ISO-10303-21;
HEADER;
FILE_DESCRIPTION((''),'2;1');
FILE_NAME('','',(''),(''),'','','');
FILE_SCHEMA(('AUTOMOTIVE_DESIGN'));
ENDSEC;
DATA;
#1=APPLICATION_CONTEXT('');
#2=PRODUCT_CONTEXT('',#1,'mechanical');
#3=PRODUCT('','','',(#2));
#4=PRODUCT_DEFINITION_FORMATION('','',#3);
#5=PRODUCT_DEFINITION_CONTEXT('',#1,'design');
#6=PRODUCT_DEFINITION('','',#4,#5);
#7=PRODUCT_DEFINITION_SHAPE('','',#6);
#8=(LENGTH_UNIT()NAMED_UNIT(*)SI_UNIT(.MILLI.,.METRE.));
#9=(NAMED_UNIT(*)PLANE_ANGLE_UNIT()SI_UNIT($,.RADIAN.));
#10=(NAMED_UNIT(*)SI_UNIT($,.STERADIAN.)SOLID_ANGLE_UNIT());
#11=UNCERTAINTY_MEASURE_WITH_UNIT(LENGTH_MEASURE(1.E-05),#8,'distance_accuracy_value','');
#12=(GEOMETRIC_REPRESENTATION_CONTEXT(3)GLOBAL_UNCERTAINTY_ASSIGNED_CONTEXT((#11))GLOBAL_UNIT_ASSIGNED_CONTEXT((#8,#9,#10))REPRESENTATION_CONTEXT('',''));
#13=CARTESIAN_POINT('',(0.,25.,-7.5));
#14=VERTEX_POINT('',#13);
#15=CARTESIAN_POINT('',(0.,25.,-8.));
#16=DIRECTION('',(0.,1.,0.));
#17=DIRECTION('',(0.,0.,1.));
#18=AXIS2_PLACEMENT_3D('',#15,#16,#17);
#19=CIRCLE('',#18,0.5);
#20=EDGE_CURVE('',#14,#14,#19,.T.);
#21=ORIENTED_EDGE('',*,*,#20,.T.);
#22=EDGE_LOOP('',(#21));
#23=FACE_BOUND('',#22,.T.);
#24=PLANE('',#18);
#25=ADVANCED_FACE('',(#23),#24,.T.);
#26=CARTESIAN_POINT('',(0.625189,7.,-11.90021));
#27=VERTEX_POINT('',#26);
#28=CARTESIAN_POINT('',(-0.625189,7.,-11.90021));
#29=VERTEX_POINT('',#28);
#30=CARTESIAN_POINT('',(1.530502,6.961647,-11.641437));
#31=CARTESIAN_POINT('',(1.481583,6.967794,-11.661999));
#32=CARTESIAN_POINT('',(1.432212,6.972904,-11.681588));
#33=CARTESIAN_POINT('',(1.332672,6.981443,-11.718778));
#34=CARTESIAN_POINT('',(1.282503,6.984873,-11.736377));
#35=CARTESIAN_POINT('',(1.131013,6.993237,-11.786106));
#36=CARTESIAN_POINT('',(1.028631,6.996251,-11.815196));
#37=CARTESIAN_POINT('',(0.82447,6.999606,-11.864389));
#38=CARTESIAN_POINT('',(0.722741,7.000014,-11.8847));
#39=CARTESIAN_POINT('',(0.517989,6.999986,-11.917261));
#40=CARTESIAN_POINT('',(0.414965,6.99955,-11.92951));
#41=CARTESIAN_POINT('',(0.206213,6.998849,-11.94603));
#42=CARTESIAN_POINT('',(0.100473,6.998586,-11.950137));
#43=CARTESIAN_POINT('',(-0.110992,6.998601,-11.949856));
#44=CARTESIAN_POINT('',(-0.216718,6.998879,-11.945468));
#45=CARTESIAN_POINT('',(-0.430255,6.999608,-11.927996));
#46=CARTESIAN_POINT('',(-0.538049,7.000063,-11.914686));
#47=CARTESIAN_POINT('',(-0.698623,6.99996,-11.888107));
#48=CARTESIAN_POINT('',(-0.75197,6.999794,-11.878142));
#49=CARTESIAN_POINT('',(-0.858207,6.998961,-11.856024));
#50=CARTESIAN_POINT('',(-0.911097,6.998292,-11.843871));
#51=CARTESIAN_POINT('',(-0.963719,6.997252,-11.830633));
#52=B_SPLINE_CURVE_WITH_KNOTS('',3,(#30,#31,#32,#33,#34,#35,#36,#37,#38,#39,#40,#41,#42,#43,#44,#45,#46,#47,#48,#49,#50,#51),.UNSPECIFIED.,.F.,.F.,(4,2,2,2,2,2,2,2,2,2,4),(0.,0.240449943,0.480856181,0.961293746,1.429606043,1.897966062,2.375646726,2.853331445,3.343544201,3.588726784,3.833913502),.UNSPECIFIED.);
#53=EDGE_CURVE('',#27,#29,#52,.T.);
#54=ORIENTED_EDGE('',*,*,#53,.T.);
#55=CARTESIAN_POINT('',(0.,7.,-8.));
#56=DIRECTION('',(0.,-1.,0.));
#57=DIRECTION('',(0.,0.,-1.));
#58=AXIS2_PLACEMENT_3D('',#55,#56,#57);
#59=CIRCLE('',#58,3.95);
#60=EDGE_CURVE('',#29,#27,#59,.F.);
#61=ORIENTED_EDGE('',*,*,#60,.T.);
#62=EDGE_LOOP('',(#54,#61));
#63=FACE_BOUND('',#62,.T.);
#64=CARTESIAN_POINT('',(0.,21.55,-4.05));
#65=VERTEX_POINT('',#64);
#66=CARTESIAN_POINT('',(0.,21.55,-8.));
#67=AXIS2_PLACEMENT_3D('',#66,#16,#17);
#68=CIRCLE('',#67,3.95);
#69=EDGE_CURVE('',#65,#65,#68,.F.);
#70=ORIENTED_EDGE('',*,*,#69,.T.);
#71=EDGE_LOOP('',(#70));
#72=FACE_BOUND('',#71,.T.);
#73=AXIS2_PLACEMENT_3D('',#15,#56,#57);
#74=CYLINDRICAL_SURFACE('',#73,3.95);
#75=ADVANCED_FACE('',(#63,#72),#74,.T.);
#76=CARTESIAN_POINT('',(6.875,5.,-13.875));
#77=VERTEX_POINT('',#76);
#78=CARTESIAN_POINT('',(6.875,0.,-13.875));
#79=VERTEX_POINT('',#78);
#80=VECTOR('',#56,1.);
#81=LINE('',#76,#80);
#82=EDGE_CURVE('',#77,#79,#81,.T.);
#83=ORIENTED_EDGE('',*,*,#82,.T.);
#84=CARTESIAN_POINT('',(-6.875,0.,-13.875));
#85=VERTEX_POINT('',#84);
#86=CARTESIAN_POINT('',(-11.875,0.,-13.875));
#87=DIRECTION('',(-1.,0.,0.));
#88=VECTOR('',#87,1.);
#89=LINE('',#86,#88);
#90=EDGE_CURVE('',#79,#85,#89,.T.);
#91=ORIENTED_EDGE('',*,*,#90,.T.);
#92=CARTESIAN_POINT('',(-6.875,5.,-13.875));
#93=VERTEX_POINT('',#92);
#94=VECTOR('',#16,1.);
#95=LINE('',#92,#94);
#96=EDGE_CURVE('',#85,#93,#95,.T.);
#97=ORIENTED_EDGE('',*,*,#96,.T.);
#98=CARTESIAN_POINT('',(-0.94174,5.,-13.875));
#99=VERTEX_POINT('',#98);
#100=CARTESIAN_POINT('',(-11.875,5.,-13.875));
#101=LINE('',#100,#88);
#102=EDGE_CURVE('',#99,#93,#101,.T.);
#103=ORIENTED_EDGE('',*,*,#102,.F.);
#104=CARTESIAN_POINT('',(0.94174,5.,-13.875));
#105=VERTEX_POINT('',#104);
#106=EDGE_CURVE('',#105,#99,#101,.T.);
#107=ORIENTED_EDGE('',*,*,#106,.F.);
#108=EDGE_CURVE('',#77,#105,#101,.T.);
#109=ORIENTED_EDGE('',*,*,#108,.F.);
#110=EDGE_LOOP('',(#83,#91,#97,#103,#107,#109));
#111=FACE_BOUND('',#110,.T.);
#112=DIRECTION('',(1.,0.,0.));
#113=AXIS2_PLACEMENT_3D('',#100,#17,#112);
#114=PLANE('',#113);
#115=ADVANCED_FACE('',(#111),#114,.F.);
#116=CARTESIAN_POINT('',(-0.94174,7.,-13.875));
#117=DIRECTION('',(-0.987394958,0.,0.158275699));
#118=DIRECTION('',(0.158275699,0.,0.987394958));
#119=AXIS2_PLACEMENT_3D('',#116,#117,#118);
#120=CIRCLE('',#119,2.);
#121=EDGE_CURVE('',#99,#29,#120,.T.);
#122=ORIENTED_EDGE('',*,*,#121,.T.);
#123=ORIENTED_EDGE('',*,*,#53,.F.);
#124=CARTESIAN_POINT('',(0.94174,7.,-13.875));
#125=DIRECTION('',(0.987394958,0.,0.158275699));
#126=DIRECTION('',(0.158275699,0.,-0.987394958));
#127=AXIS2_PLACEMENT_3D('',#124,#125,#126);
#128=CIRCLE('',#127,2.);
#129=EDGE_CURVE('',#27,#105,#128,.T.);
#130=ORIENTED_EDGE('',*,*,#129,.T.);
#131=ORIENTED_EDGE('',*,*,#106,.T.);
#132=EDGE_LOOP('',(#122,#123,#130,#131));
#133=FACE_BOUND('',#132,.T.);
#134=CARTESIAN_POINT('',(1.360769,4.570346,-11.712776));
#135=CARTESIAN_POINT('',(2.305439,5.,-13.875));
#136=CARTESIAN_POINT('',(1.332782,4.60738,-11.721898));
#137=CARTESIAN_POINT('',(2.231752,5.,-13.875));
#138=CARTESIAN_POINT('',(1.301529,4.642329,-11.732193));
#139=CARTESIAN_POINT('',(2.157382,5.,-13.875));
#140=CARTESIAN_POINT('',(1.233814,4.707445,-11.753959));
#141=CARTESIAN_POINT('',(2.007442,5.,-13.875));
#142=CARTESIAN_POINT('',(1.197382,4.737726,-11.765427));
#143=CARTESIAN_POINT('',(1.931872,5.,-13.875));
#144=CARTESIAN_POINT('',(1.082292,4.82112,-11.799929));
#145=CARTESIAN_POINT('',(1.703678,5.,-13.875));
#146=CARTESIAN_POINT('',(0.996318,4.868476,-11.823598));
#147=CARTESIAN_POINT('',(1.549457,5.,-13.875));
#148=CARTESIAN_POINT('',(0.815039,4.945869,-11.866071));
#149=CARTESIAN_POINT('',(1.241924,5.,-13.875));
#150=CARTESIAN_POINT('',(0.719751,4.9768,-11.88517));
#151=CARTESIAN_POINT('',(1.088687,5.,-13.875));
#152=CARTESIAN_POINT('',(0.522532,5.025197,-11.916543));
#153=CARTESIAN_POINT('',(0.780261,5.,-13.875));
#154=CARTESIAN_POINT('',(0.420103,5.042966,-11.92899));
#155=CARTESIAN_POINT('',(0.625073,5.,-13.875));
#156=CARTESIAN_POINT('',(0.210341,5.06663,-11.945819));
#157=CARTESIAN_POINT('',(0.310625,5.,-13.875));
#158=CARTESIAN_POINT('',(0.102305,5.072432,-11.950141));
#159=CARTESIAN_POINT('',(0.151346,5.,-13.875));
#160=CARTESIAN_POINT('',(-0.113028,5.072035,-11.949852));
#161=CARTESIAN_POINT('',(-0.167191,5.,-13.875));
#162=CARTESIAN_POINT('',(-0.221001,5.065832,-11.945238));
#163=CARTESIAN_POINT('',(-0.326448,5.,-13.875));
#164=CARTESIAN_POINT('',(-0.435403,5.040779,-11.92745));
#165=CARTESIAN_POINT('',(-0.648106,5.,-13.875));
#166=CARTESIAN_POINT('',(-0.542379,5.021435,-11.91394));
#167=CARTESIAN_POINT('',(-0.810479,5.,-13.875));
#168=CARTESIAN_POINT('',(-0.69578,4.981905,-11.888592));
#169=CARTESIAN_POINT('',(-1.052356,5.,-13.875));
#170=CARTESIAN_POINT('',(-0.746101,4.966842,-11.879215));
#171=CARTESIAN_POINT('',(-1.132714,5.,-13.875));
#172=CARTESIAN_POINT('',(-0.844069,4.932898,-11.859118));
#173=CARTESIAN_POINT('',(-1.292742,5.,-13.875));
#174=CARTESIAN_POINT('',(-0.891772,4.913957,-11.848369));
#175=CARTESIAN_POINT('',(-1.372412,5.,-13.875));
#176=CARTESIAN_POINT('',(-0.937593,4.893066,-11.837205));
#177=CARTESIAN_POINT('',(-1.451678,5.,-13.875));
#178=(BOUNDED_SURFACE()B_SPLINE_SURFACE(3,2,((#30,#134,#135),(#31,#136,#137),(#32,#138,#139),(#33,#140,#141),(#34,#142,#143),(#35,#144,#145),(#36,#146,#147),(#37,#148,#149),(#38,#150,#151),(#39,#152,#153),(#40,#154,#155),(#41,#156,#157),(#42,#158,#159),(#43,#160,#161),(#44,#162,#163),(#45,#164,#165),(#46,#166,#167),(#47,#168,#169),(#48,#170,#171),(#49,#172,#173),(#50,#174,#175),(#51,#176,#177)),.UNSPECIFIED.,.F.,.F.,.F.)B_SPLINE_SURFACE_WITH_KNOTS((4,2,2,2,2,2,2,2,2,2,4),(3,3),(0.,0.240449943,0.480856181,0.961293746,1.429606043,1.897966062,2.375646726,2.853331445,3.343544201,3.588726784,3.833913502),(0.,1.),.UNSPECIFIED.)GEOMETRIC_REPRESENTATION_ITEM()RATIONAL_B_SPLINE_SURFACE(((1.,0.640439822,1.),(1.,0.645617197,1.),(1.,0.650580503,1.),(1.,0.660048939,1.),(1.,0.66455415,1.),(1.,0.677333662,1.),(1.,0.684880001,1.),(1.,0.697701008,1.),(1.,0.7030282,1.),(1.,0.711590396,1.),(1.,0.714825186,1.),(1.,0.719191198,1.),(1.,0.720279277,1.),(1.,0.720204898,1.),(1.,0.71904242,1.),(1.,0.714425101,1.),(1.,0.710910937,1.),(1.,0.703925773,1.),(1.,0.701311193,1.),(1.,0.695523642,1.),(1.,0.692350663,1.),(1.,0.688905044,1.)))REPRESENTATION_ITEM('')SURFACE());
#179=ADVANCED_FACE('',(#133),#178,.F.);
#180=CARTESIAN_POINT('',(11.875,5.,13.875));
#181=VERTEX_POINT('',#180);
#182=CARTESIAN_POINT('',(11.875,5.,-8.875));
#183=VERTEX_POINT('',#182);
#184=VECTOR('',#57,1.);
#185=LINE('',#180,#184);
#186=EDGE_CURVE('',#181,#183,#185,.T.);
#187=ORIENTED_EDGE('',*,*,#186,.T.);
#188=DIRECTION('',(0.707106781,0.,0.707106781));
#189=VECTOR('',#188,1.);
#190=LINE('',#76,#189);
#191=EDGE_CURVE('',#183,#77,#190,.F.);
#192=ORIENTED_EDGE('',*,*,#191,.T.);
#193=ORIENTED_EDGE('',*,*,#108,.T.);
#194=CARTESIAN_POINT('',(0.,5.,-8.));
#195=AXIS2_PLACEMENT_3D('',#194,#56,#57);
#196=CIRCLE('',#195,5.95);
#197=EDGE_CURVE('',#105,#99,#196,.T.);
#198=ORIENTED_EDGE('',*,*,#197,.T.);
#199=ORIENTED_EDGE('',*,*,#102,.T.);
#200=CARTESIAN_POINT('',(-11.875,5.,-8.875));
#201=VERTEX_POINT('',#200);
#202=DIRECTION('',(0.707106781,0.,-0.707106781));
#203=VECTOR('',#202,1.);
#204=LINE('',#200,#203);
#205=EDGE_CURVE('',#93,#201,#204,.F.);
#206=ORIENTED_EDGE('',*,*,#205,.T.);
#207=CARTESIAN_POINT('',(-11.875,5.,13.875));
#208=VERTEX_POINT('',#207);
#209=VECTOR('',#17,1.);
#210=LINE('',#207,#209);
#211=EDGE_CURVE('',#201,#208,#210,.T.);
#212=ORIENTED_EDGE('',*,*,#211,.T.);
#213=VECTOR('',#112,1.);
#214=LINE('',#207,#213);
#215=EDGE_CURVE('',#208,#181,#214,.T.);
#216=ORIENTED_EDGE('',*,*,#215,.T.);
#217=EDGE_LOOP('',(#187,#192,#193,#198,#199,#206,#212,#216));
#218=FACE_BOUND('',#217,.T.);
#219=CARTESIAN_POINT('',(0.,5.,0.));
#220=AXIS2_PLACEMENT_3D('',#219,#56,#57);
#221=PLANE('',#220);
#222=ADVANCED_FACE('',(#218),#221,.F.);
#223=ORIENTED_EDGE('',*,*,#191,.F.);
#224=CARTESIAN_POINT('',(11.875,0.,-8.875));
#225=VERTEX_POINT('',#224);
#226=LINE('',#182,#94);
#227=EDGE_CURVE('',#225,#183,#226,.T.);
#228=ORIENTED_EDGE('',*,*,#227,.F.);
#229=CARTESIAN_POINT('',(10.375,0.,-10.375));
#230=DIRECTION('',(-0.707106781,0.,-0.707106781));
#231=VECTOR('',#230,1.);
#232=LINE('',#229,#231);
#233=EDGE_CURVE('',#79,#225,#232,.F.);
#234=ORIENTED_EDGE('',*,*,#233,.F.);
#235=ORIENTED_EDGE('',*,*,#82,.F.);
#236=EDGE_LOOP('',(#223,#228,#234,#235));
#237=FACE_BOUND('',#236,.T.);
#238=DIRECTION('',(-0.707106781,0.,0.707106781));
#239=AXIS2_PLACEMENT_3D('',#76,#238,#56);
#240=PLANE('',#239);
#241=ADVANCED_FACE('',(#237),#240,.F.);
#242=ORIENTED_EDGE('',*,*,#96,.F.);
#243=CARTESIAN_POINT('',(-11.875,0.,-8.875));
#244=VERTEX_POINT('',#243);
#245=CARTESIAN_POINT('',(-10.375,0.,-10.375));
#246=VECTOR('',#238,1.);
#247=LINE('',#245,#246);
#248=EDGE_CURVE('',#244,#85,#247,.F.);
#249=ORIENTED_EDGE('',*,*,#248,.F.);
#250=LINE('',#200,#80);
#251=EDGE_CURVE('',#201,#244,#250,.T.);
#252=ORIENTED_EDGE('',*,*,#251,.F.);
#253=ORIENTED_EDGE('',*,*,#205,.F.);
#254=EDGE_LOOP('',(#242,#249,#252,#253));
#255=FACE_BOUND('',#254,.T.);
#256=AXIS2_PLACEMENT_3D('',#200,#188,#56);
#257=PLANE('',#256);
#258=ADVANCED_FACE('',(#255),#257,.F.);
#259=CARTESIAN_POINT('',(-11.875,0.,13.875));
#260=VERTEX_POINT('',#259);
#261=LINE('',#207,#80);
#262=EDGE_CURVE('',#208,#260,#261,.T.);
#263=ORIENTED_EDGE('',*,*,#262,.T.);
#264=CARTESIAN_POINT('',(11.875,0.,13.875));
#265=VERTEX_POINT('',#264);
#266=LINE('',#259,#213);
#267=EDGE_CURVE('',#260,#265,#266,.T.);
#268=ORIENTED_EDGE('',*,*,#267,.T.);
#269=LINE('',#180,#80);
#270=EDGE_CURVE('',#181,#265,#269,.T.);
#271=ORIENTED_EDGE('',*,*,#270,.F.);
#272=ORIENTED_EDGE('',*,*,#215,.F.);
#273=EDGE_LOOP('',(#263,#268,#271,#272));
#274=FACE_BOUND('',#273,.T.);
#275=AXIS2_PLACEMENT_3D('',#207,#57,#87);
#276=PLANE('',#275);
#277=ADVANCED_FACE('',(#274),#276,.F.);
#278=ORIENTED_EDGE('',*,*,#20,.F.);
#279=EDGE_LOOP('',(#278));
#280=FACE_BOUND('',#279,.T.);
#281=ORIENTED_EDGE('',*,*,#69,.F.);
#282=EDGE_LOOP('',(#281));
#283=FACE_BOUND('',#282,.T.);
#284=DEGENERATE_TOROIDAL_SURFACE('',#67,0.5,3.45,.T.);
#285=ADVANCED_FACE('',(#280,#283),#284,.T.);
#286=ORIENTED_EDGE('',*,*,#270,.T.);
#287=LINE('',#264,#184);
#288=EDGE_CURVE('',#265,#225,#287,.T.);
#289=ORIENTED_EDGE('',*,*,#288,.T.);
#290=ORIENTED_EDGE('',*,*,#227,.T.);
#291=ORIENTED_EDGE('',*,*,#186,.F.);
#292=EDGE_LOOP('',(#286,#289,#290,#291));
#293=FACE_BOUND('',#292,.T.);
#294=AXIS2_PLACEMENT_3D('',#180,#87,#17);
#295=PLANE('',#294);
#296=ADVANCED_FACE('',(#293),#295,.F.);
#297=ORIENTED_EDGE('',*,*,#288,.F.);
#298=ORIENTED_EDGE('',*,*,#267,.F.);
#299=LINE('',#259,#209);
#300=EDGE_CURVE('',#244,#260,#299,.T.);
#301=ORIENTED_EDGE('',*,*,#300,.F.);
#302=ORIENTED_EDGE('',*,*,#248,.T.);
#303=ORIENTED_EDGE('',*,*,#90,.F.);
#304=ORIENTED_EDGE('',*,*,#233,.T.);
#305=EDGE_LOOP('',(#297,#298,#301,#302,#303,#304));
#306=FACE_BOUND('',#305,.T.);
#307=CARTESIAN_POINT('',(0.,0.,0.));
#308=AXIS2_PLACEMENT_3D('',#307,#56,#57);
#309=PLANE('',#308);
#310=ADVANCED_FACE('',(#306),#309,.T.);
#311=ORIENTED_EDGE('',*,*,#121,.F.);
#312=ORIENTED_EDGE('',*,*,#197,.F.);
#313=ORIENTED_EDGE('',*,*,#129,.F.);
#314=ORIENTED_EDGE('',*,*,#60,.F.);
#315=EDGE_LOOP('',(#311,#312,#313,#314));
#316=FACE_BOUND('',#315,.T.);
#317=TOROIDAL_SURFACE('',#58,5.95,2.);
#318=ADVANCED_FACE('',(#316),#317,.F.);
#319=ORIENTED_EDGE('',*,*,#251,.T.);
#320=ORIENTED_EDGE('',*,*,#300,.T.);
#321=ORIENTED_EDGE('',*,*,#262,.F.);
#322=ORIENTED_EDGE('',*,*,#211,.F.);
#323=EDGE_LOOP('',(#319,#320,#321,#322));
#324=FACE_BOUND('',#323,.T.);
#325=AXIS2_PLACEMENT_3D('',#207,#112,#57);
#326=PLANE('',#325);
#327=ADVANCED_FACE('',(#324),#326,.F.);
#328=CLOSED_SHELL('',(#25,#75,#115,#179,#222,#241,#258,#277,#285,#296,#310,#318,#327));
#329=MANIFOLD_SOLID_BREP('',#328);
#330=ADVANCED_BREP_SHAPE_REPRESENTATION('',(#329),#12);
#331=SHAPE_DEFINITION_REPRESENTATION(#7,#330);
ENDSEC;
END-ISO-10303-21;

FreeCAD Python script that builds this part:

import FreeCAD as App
import Part
import Sketcher


def edges_at(feature, points):
    """Names of the edges that pass closest to the given points."""
    edges = feature.Shape.Edges
    near = lambda p: min(range(len(edges)), key=lambda i: edges[i].distToShape(Part.Vertex(*p))[0])
    return sorted({f"Edge{near(p) + 1}" for p in points})

doc = App.newDocument("Part")
body = doc.addObject("PartDesign::Body", "Body")

sketch1 = body.newObject("Sketcher::SketchObject", "Sketch")
sketch1.AttachmentSupport = (doc.getObject("XZ_Plane"), [""])
sketch1.MapMode = "FlatFace"
sketch1.addGeometry([
    Part.LineSegment(App.Vector(-11.875, -13.875, 0), App.Vector(-11.875, 13.875, 0)),
    Part.LineSegment(App.Vector(-11.875, 13.875, 0), App.Vector(11.875, 13.875, 0)),
    Part.LineSegment(App.Vector(11.875, 13.875, 0), App.Vector(11.875, -13.875, 0)),
    Part.LineSegment(App.Vector(11.875, -13.875, 0), App.Vector(-11.875, -13.875, 0)),
], False)
sketch1.addConstraint([
    Sketcher.Constraint("Coincident", 0, 2, 1, 1),
    Sketcher.Constraint("Coincident", 1, 2, 2, 1),
    Sketcher.Constraint("Coincident", 2, 2, 3, 1),
    Sketcher.Constraint("Coincident", 3, 2, 0, 1),
    Sketcher.Constraint("Vertical", 0),
    Sketcher.Constraint("Horizontal", 1),
    Sketcher.Constraint("Vertical", 2),
    Sketcher.Constraint("Horizontal", 3),
    Sketcher.Constraint("Symmetric", 0, 2, 2, 2, -1, 1),
    Sketcher.Constraint("DistanceX", 1, 1, 1, 2, 23.75),
    Sketcher.Constraint("DistanceY", 0, 1, 0, 2, 27.75),
])
pad1 = body.newObject("PartDesign::Pad", "Pad")
pad1.Profile = sketch1
pad1.Length = 5
pad1.Reversed = True

sketch2 = body.newObject("Sketcher::SketchObject", "Sketch001")
sketch2.AttachmentSupport = (doc.getObject("XZ_Plane"), [""])
sketch2.MapMode = "FlatFace"
sketch2.AttachmentOffset = App.Placement(App.Vector(0, 0, -5), App.Rotation())
sketch2.addGeometry(Part.Circle(App.Vector(0, -8, 0), App.Vector(0, 0, 1), 3.95), False)
sketch2.addConstraint([
    Sketcher.Constraint("PointOnObject", 0, 3, -2),
    Sketcher.Constraint("Diameter", 0, 7.9),
    Sketcher.Constraint("DistanceY", 0, 3, -1, 1, 8.0),
])
pad2 = body.newObject("PartDesign::Pad", "Pad001")
pad2.Profile = sketch2
pad2.Length = 20
pad2.Reversed = True
doc.recompute()

fillet = body.newObject("PartDesign::Fillet", "Fillet")
fillet.Base = (pad2, edges_at(pad2, [(0, 25, -4.05)]))
fillet.Radius = 3.45
doc.recompute()

fillet2 = body.newObject("PartDesign::Fillet", "Fillet001")
fillet2.Base = (fillet, edges_at(fillet, [(0, 5, -4.05)]))
fillet2.Radius = 2
doc.recompute()

chamfer = body.newObject("PartDesign::Chamfer", "Chamfer")
chamfer.Base = (fillet2, edges_at(fillet2, [(-11.875, 2.5, -13.875), (11.875, 2.5, -13.875)]))
chamfer.Size = 5

doc.recompute()
